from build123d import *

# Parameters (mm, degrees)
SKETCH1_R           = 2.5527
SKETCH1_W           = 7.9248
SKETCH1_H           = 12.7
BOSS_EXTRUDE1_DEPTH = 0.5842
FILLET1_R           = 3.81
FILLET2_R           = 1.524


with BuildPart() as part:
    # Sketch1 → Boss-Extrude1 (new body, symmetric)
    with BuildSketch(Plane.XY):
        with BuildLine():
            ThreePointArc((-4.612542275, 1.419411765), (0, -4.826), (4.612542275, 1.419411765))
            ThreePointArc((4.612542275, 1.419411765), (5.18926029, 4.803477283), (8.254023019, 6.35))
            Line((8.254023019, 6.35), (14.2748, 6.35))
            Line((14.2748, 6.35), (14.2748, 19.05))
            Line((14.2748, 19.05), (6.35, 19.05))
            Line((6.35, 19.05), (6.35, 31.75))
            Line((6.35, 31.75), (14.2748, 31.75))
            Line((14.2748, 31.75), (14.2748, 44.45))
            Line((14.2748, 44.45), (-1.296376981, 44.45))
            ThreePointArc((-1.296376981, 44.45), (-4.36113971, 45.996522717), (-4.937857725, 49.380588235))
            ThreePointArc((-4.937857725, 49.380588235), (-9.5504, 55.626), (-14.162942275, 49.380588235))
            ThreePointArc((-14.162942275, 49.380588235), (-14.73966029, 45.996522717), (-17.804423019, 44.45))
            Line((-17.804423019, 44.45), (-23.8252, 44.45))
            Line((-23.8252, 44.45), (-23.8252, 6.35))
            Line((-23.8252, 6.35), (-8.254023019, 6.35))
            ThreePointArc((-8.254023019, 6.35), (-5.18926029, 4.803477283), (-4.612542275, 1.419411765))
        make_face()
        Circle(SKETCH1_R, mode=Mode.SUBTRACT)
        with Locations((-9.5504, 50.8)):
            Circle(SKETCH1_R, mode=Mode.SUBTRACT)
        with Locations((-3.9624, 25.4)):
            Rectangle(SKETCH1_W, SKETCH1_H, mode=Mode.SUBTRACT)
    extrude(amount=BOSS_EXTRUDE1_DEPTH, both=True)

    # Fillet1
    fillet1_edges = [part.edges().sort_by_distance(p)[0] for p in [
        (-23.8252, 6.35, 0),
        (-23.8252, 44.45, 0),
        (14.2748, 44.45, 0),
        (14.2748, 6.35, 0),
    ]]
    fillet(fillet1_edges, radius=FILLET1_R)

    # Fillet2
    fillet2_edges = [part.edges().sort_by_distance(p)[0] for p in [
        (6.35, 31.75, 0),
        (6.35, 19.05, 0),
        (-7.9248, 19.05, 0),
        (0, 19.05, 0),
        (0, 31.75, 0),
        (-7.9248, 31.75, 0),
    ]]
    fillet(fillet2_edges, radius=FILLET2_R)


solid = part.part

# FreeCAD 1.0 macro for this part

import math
import FreeCAD as App
import Part
import Sketcher

V = App.Vector
Q = App.Units.Quantity


def edges_at(feature, points):
    """Names of the edges that pass closest to the given points."""
    edges = feature.Shape.Edges
    near = lambda p: min(range(len(edges)), key=lambda i: edges[i].distToShape(Part.Vertex(*p))[0])
    return sorted({f"Edge{near(p) + 1}" for p in points})


def add_polygon(sketch, points):
    """Adds a closed chain of lines whose ends are joined by coincident constraints."""
    first, n = sketch.GeometryCount, len(points)
    for a, b in zip(points, points[1:] + points[:1]):
        sketch.addGeometry(Part.LineSegment(App.Vector(*a, 0), App.Vector(*b, 0)), False)
    for i in range(n):
        sketch.addConstraint(Sketcher.Constraint("Coincident", first + i, 2, first + (i + 1) % n, 1))

doc = App.newDocument("Part")
body = doc.addObject("PartDesign::Body", "Body")

sketch1 = body.newObject("Sketcher::SketchObject", "Sketch")
sketch1.AttachmentSupport = (doc.getObject("XY_Plane"), [""])
sketch1.MapMode = "FlatFace"
sketch1.addGeometry(Part.ArcOfCircle(Part.Circle(V(0, 0, 0), V(0, 0, 1), 4.8), math.radians(163), math.radians(377)), False)
sketch1.addGeometry(Part.ArcOfCircle(Part.Circle(V(8.3, 2.5, 0), V(0, 0, 1), 3.8), math.radians(90), math.radians(197)), False)
sketch1.addGeometry(Part.LineSegment(V(8.3, 6.3, 0), V(14.3, 6.3, 0)), False)
sketch1.addGeometry(Part.LineSegment(V(14.3, 6.3, 0), V(14.3, 19.1, 0)), False)
sketch1.addGeometry(Part.LineSegment(V(14.3, 19.1, 0), V(6.3, 19.1, 0)), False)
sketch1.addGeometry(Part.LineSegment(V(6.3, 19.1, 0), V(6.3, 31.8, 0)), False)
sketch1.addGeometry(Part.LineSegment(V(6.3, 31.8, 0), V(14.3, 31.8, 0)), False)
sketch1.addGeometry(Part.LineSegment(V(14.3, 31.8, 0), V(14.3, 44.5, 0)), False)
sketch1.addGeometry(Part.LineSegment(V(14.3, 44.5, 0), V(-1.3, 44.5, 0)), False)
sketch1.addGeometry(Part.ArcOfCircle(Part.Circle(V(-1.3, 48.3, 0), V(0, 0, 1), 3.8), math.radians(163), math.radians(270)), False)
sketch1.addGeometry(Part.ArcOfCircle(Part.Circle(V(-9.6, 50.8, 0), V(0, 0, 1), 4.8), math.radians(-17), math.radians(197)), False)
sketch1.addGeometry(Part.ArcOfCircle(Part.Circle(V(-17.8, 48.3, 0), V(0, 0, 1), 3.8), math.radians(-90), math.radians(17)), False)
sketch1.addGeometry(Part.LineSegment(V(-17.8, 44.5, 0), V(-23.8, 44.5, 0)), False)
sketch1.addGeometry(Part.LineSegment(V(-23.8, 44.5, 0), V(-23.8, 6.3, 0)), False)
sketch1.addGeometry(Part.LineSegment(V(-23.8, 6.3, 0), V(-8.3, 6.3, 0)), False)
sketch1.addGeometry(Part.ArcOfCircle(Part.Circle(V(-8.3, 2.5, 0), V(0, 0, 1), 3.8), math.radians(-17), math.radians(90)), False)
sketch1.addGeometry(Part.Circle(V(0, 0, 0), V(0, 0, 1), 2.6), False)
sketch1.addGeometry(Part.Circle(V(-9.6, 50.8, 0), V(0, 0, 1), 2.6), False)
add_polygon(sketch1, [(0, 19.1), (-7.9, 19.1), (-7.9, 31.8), (0, 31.8)])
sketch1.addConstraint(Sketcher.Constraint("Tangent", 0, 2, 1, 2))
sketch1.addConstraint(Sketcher.Constraint("Tangent", 1, 1, 2, 1))
sketch1.addConstraint(Sketcher.Constraint("Coincident", 2, 2, 3, 1))
sketch1.addConstraint(Sketcher.Constraint("Coincident", 3, 2, 4, 1))
sketch1.addConstraint(Sketcher.Constraint("Coincident", 4, 2, 5, 1))
sketch1.addConstraint(Sketcher.Constraint("Coincident", 5, 2, 6, 1))
sketch1.addConstraint(Sketcher.Constraint("Coincident", 6, 2, 7, 1))
sketch1.addConstraint(Sketcher.Constraint("Coincident", 7, 2, 8, 1))
sketch1.addConstraint(Sketcher.Constraint("Tangent", 8, 2, 9, 2))
sketch1.addConstraint(Sketcher.Constraint("Tangent", 9, 1, 10, 1))
sketch1.addConstraint(Sketcher.Constraint("Tangent", 10, 2, 11, 2))
sketch1.addConstraint(Sketcher.Constraint("Tangent", 11, 1, 12, 1))
sketch1.addConstraint(Sketcher.Constraint("Coincident", 12, 2, 13, 1))
sketch1.addConstraint(Sketcher.Constraint("Coincident", 13, 2, 14, 1))
sketch1.addConstraint(Sketcher.Constraint("Tangent", 14, 2, 15, 2))
sketch1.addConstraint(Sketcher.Constraint("Tangent", 15, 1, 0, 1))
sketch1.addConstraint(Sketcher.Constraint("Horizontal", 2))
sketch1.addConstraint(Sketcher.Constraint("Vertical", 3))
sketch1.addConstraint(Sketcher.Constraint("Horizontal", 4))
sketch1.addConstraint(Sketcher.Constraint("Vertical", 5))
sketch1.addConstraint(Sketcher.Constraint("Horizontal", 6))
sketch1.addConstraint(Sketcher.Constraint("Vertical", 7))
sketch1.addConstraint(Sketcher.Constraint("Horizontal", 8))
sketch1.addConstraint(Sketcher.Constraint("Horizontal", 12))
sketch1.addConstraint(Sketcher.Constraint("Vertical", 13))
sketch1.addConstraint(Sketcher.Constraint("Horizontal", 14))
sketch1.addConstraint(Sketcher.Constraint("Horizontal", 18))
sketch1.addConstraint(Sketcher.Constraint("Vertical", 19))
sketch1.addConstraint(Sketcher.Constraint("Horizontal", 20))
sketch1.addConstraint(Sketcher.Constraint("Vertical", 21))
sketch1.addConstraint(Sketcher.Constraint("Coincident", 0, 3, -1, 1))
sketch1.addConstraint(Sketcher.Constraint("Coincident", 16, 3, -1, 1))
sketch1.addConstraint(Sketcher.Constraint("Coincident", 17, 3, 10, 3))
sketch1.addConstraint(Sketcher.Constraint("Equal", 1, 9))
sketch1.addConstraint(Sketcher.Constraint("Equal", 0, 10))
sketch1.addConstraint(Sketcher.Constraint("Equal", 9, 11))
sketch1.addConstraint(Sketcher.Constraint("Equal", 11, 15))
sketch1.addConstraint(Sketcher.Constraint("Equal", 16, 17))
sketch1.addConstraint(Sketcher.Constraint("PointOnObject", 20, 2, -2))
sketch1.addConstraint(Sketcher.Constraint("Horizontal", 9, 3, 11, 3))
sketch1.addConstraint(Sketcher.Constraint("Horizontal", 1, 3, 15, 3))
sketch1.addConstraint(Sketcher.Constraint("Horizontal", 4, 2, 18, 2))
sketch1.addConstraint(Sketcher.Constraint("Horizontal", 6, 2, 19, 2))
sketch1.addConstraint(Sketcher.Constraint("Vertical", 3, 2, 6, 2))
sketch1.addConstraint(Sketcher.Constraint("Equal", 2, 12))
sketch1.addConstraint(Sketcher.Constraint("Equal", 8, 14))
sketch1.addConstraint(Sketcher.Constraint("Equal", 6, 18))
sketch1.addConstraint(Sketcher.Constraint("Equal", 3, 5))
sketch1.addConstraint(Sketcher.Constraint("Equal", 5, 7))
sketch1.addConstraint(Sketcher.Constraint("Radius", 0, Q("0.19 in")))
sketch1.addConstraint(Sketcher.Constraint("Radius", 1, Q("0.15 in")))
sketch1.addConstraint(Sketcher.Constraint("Diameter", 16, Q("0.201 in")))
sketch1.addConstraint(Sketcher.Constraint("DistanceY", 3, 1, 3, 2, Q("0.5 in")))
sketch1.addConstraint(Sketcher.Constraint("DistanceY", -1, 1, 10, 3, Q("2 in")))
sketch1.addConstraint(Sketcher.Constraint("DistanceX", 4, 2, 4, 1, Q("0.312 in")))
sketch1.addConstraint(Sketcher.Constraint("DistanceX", -1, 1, 4, 2, Q("0.25 in")))
sketch1.addConstraint(Sketcher.Constraint("DistanceX", 10, 3, -1, 1, Q("0.376 in")))
pad1 = body.newObject("PartDesign::Pad", "Pad")
pad1.Profile = sketch1
pad1.Length = Q("0.046 in")
pad1.Midplane = True
doc.recompute()

fillet = body.newObject("PartDesign::Fillet", "Fillet")
fillet.Base = (pad1, edges_at(pad1, [
    (-23.825, 6.35, 0),
    (-23.825, 44.45, 0),
    (14.275, 44.45, 0),
    (14.275, 6.35, 0),
]))
fillet.Radius = Q("0.15 in")
doc.recompute()

fillet2 = body.newObject("PartDesign::Fillet", "Fillet001")
fillet2.Base = (fillet, edges_at(fillet, [
    (6.35, 31.75, 0),
    (6.35, 19.05, 0),
    (-7.925, 19.05, 0),
    (0, 19.05, 0),
    (0, 31.75, 0),
    (-7.925, 31.75, 0),
]))
fillet2.Radius = Q("0.06 in")

doc.recompute()
